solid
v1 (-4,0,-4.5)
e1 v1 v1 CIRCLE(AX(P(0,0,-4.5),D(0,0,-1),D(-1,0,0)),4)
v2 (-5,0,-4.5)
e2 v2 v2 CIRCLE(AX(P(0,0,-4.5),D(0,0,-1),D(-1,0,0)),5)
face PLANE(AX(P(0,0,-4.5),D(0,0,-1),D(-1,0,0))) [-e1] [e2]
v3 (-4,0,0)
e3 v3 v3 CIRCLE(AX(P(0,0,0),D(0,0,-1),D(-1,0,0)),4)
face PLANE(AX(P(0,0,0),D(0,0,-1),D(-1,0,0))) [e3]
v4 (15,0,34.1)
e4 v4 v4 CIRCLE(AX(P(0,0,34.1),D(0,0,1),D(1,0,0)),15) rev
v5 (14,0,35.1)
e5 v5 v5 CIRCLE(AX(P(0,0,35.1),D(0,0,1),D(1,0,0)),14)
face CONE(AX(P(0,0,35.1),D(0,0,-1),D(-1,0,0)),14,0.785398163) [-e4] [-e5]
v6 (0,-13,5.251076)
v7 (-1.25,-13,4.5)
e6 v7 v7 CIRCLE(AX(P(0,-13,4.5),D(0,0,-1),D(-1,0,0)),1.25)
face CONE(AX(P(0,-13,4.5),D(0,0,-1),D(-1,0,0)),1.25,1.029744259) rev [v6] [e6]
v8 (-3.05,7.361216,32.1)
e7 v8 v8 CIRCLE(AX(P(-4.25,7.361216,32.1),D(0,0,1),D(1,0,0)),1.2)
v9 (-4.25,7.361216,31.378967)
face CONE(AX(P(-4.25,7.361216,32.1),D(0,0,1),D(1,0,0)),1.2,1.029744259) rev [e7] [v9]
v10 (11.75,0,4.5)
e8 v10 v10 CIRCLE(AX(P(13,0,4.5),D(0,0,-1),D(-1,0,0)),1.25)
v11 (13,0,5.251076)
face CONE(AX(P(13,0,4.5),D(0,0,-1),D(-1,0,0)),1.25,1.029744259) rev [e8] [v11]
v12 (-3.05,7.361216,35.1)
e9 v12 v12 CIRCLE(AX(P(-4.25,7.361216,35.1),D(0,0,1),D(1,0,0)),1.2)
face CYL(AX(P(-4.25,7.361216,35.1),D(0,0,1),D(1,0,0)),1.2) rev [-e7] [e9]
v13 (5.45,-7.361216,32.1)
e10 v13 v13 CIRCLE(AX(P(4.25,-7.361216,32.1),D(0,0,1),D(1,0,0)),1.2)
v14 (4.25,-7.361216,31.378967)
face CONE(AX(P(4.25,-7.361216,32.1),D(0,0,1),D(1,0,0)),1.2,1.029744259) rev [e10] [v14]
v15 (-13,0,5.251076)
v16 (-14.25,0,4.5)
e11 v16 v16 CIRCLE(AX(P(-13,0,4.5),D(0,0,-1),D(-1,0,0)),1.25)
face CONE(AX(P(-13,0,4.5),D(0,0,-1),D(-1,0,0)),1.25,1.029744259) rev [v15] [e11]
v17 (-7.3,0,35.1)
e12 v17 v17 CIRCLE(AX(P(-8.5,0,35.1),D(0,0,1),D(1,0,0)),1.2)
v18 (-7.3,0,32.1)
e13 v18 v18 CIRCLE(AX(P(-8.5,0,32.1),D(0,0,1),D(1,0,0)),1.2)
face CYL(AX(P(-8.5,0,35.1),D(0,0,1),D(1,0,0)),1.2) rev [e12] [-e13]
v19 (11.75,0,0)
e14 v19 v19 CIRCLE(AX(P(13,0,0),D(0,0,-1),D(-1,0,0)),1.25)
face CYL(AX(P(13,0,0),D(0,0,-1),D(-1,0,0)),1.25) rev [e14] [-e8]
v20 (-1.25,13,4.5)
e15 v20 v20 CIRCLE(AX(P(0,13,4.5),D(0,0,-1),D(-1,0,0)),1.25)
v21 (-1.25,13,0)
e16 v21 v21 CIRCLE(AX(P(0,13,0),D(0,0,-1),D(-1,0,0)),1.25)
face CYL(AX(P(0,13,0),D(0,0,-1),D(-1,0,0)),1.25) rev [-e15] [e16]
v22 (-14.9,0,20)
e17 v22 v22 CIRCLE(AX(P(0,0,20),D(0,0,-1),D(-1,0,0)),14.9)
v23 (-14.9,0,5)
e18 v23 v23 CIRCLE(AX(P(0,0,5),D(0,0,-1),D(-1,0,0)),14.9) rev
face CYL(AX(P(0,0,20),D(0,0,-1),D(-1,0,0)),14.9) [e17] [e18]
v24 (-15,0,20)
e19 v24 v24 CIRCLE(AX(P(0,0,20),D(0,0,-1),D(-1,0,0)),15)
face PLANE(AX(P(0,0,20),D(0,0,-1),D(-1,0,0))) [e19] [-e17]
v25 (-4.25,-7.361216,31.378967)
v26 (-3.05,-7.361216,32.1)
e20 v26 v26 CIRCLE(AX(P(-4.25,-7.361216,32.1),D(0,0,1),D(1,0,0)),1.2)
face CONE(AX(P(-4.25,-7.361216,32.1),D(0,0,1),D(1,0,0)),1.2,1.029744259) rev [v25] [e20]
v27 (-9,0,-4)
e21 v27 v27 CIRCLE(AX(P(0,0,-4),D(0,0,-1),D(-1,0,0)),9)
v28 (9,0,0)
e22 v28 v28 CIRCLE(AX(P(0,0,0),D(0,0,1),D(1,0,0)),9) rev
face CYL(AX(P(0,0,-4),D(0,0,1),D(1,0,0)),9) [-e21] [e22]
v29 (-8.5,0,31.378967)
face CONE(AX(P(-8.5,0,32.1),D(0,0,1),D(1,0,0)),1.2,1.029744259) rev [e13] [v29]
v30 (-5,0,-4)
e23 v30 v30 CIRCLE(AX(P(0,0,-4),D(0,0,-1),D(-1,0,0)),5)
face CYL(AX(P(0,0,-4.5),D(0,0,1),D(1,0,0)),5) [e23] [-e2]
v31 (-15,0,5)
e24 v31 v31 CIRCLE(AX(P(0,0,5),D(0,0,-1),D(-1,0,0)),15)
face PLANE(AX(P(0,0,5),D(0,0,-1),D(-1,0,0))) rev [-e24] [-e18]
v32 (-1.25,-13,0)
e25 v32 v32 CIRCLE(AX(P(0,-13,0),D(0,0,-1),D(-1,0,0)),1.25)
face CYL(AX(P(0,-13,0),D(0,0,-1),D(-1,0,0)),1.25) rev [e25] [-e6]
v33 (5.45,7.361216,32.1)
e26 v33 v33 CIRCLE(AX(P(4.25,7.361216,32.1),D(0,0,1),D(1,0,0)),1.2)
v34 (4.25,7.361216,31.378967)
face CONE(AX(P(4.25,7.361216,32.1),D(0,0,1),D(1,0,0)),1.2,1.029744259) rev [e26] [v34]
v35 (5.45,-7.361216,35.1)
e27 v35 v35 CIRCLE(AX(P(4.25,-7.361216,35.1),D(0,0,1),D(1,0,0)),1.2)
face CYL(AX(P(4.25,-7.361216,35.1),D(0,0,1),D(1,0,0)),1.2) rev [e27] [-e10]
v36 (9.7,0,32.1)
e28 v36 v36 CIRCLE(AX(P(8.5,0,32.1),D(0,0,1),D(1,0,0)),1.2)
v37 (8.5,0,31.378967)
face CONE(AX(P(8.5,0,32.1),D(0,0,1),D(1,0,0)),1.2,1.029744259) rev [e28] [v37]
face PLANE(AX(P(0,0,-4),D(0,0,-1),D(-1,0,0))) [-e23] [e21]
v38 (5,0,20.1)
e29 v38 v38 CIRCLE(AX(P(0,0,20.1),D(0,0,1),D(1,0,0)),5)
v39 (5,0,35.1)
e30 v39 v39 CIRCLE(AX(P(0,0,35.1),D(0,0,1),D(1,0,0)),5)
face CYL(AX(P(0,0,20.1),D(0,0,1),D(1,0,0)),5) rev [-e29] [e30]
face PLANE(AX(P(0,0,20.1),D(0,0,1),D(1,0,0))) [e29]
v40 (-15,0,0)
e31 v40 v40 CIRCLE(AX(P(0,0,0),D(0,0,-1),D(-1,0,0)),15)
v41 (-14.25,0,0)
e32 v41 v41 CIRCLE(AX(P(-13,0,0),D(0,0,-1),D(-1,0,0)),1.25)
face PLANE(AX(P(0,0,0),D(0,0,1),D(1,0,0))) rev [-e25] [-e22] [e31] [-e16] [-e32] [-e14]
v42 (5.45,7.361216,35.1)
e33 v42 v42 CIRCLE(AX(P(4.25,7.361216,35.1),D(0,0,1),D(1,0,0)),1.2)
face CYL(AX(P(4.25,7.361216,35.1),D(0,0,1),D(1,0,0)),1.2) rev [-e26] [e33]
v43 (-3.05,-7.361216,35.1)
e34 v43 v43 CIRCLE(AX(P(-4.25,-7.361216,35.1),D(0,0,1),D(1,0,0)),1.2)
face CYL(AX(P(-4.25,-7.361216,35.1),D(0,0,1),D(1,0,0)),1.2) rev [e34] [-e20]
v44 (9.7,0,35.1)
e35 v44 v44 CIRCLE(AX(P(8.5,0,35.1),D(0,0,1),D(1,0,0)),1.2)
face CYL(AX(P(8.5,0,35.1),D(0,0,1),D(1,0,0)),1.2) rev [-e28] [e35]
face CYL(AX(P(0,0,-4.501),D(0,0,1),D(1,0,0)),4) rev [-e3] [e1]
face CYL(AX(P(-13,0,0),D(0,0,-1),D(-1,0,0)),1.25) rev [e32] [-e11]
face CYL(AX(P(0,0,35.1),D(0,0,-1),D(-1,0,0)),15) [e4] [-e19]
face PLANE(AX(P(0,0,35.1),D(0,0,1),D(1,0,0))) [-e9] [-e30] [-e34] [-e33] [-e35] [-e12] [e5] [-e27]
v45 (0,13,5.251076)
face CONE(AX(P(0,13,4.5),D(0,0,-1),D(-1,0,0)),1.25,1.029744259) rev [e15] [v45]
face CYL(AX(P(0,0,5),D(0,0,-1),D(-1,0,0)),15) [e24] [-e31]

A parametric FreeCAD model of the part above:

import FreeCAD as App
import Part
import Sketcher
from FreeCAD import Vector


def edges_at(feature, points):
    """Names of the edges that pass closest to the given points."""
    edges = feature.Shape.Edges
    near = lambda p: min(range(len(edges)), key=lambda i: edges[i].distToShape(Part.Vertex(*p))[0])
    return sorted({f"Edge{near(p) + 1}" for p in points})

doc = App.newDocument("Part")
body = doc.addObject("PartDesign::Body", "Body")

sketch1 = doc.addObject("Sketcher::SketchObject", "Sketch")
body.addObject(sketch1)
sketch1.AttachmentSupport = (doc.XY_Plane, [""])
sketch1.MapMode = "FlatFace"
sketch1.addGeometry(Part.Circle(Vector(0, 0, 0), Vector(0, 0, 1), 15), False)
sketch1.addConstraint([
    Sketcher.Constraint("Coincident", 0, 3, -1, 1),
    Sketcher.Constraint("Diameter", 0, 30.0),
])
pad1 = doc.addObject("PartDesign::Pad", "Pad")
body.addObject(pad1)
pad1.Profile = sketch1
pad1.Length = 35.1

sketch2 = doc.addObject("Sketcher::SketchObject", "Sketch001")
body.addObject(sketch2)
sketch2.AttachmentSupport = (doc.XY_Plane, [""])
sketch2.MapMode = "FlatFace"
sketch2.addGeometry(Part.Circle(Vector(0, 0, 0), Vector(0, 0, 1), 9), False)
sketch2.addConstraint([
    Sketcher.Constraint("Coincident", 0, 3, -1, 1),
    Sketcher.Constraint("Diameter", 0, 18.0),
])
pad2 = doc.addObject("PartDesign::Pad", "Pad001")
body.addObject(pad2)
pad2.Profile = sketch2
pad2.Length = 4
pad2.Reversed = True

sketch3 = doc.addObject("Sketcher::SketchObject", "Sketch002")
body.addObject(sketch3)
sketch3.AttachmentSupport = (doc.XY_Plane, [""])
sketch3.MapMode = "FlatFace"
sketch3.AttachmentOffset = App.Placement(Vector(0, 0, -4), App.Rotation())
sketch3.addGeometry(Part.Circle(Vector(0, 0, 0), Vector(0, 0, 1), 5), False)
sketch3.addConstraint([
    Sketcher.Constraint("Coincident", 0, 3, -1, 1),
    Sketcher.Constraint("Diameter", 0, 10.0),
])
pad3 = doc.addObject("PartDesign::Pad", "Pad002")
body.addObject(pad3)
pad3.Profile = sketch3
pad3.Length = 0.5
pad3.Reversed = True
doc.recompute()

chamfer = doc.addObject("PartDesign::Chamfer", "Chamfer")
body.addObject(chamfer)
chamfer.Base = (pad3, edges_at(pad3, [(-15, 0, 35.1)]))
chamfer.Size = 1

sketch4 = doc.addObject("Sketcher::SketchObject", "Sketch003")
body.addObject(sketch4)
sketch4.AttachmentSupport = (doc.XY_Plane, [""])
sketch4.MapMode = "FlatFace"
sketch4.addGeometry(Part.Circle(Vector(0, 0, 0), Vector(0, 0, 1), 4), False)
sketch4.addConstraint([
    Sketcher.Constraint("Coincident", 0, 3, -1, 1),
    Sketcher.Constraint("Diameter", 0, 8.0),
])
pocket1 = doc.addObject("PartDesign::Pocket", "Pocket")
body.addObject(pocket1)
pocket1.Profile = sketch4
pocket1.Type = "UpToFirst"

sketch5 = doc.addObject("Sketcher::SketchObject", "Sketch004")
body.addObject(sketch5)
sketch5.AttachmentSupport = (doc.XY_Plane, [""])
sketch5.MapMode = "FlatFace"
sketch5.addGeometry([
    Part.Circle(Vector(0, 0, 0), Vector(0, 0, 1), 15),
    Part.Circle(Vector(0, 0, 0), Vector(0, 0, 1), 14.9),
], False)
sketch5.addConstraint([
    Sketcher.Constraint("Coincident", 0, 3, -1, 1),
    Sketcher.Constraint("Coincident", 1, 3, -1, 1),
    Sketcher.Constraint("Diameter", 0, 30.0),
    Sketcher.Constraint("Diameter", 1, 29.8),
])
pocket2 = doc.addObject("PartDesign::Pocket", "Pocket001")
body.addObject(pocket2)
pocket2.Profile = sketch5
pocket2.Length = 20
pocket2.Reversed = True

sketch6 = doc.addObject("Sketcher::SketchObject", "Sketch005")
body.addObject(sketch6)
sketch6.AttachmentSupport = (doc.XY_Plane, [""])
sketch6.MapMode = "FlatFace"
sketch6.addGeometry(Part.Circle(Vector(0, 0, 0), Vector(0, 0, 1), 15), False)
sketch6.addConstraint([
    Sketcher.Constraint("Coincident", 0, 3, -1, 1),
    Sketcher.Constraint("Diameter", 0, 30.0),
])
pad4 = doc.addObject("PartDesign::Pad", "Pad003")
body.addObject(pad4)
pad4.Profile = sketch6
pad4.Length = 5

sketch7 = doc.addObject("Sketcher::SketchObject", "Sketch006")
body.addObject(sketch7)
sketch7.AttachmentSupport = (doc.XY_Plane, [""])
sketch7.MapMode = "FlatFace"
sketch7.addGeometry([
    Part.Circle(Vector(-13, 0, 0), Vector(0, 0, 1), 1.25),
    Part.Circle(Vector(0, 13, 0), Vector(0, 0, 1), 1.25),
    Part.Circle(Vector(13, 0, 0), Vector(0, 0, 1), 1.25),
    Part.Circle(Vector(0, -13, 0), Vector(0, 0, 1), 1.25),
], False)
sketch7.addConstraint([
    Sketcher.Constraint("Equal", 0, 1),
    Sketcher.Constraint("Equal", 1, 2),
    Sketcher.Constraint("Equal", 2, 3),
    Sketcher.Constraint("Symmetric", 0, 3, 2, 3, -1, 1),
    Sketcher.Constraint("Symmetric", 1, 3, 3, 3, -1, 1),
    Sketcher.Constraint("PointOnObject", 0, 3, -1),
    Sketcher.Constraint("PointOnObject", 1, 3, -2),
    Sketcher.Constraint("Diameter", 0, 2.5),
    Sketcher.Constraint("DistanceX", 0, 3, -1, 1, 13.0),
    Sketcher.Constraint("DistanceY", -1, 1, 1, 3, 13.0),
])
doc.recompute()
hole = doc.addObject("PartDesign::Hole", "Hole")
body.addObject(hole)
hole.Profile = sketch7
hole.ThreadType = "None"
hole.Diameter = 2.5
hole.DepthType = "Dimension"
hole.Depth = 4.5
hole.DrillPoint = "Angled"
hole.DrillPointAngle = 118
hole.Reversed = True

sketch8 = doc.addObject("Sketcher::SketchObject", "Sketch007")
body.addObject(sketch8)
sketch8.AttachmentSupport = (doc.XY_Plane, [""])
sketch8.MapMode = "FlatFace"
sketch8.AttachmentOffset = App.Placement(Vector(0, 0, 35.1), App.Rotation())
sketch8.addGeometry(Part.Circle(Vector(0, 0, 0), Vector(0, 0, 1), 5), False)
sketch8.addConstraint([
    Sketcher.Constraint("Coincident", 0, 3, -1, 1),
    Sketcher.Constraint("Diameter", 0, 10.0),
])
pocket3 = doc.addObject("PartDesign::Pocket", "Pocket002")
body.addObject(pocket3)
pocket3.Profile = sketch8
pocket3.Length = 15

sketch9 = doc.addObject("Sketcher::SketchObject", "Sketch008")
body.addObject(sketch9)
sketch9.AttachmentSupport = (doc.XY_Plane, [""])
sketch9.MapMode = "FlatFace"
sketch9.AttachmentOffset = App.Placement(Vector(0, 0, 35.1), App.Rotation())
sketch9.addGeometry([
    Part.Circle(Vector(4.25, -7.361216, 0), Vector(0, 0, 1), 1.2),
    Part.Circle(Vector(-4.25, -7.361216, 0), Vector(0, 0, 1), 1.2),
    Part.Circle(Vector(-8.5, 0, 0), Vector(0, 0, 1), 1.2),
    Part.Circle(Vector(-4.25, 7.361216, 0), Vector(0, 0, 1), 1.2),
    Part.Circle(Vector(4.25, 7.361216, 0), Vector(0, 0, 1), 1.2),
    Part.Circle(Vector(8.5, 0, 0), Vector(0, 0, 1), 1.2),
], False)
sketch9.addConstraint([
    Sketcher.Constraint("Equal", 0, 1),
    Sketcher.Constraint("Equal", 1, 2),
    Sketcher.Constraint("Equal", 2, 3),
    Sketcher.Constraint("Equal", 3, 4),
    Sketcher.Constraint("Equal", 4, 5),
    Sketcher.Constraint("Symmetric", 0, 3, 3, 3, -1, 1),
    Sketcher.Constraint("Symmetric", 1, 3, 4, 3, -1, 1),
    Sketcher.Constraint("Symmetric", 2, 3, 5, 3, -1, 1),
    Sketcher.Constraint("Symmetric", 0, 3, 1, 3, -2),
    Sketcher.Constraint("PointOnObject", 2, 3, -1),
    Sketcher.Constraint("Diameter", 0, 2.4),
    Sketcher.Constraint("DistanceX", 2, 3, 5, 3, 17.0),
    Sketcher.Constraint("DistanceX", 1, 3, 0, 3, 8.5),
    Sketcher.Constraint("DistanceY", 1, 3, 3, 3, 14.722432),
])
doc.recompute()
hole2 = doc.addObject("PartDesign::Hole", "Hole001")
body.addObject(hole2)
hole2.Profile = sketch9
hole2.ThreadType = "None"
hole2.Diameter = 2.4
hole2.DepthType = "Dimension"
hole2.Depth = 3
hole2.DrillPoint = "Angled"
hole2.DrillPointAngle = 118

doc.recompute()
